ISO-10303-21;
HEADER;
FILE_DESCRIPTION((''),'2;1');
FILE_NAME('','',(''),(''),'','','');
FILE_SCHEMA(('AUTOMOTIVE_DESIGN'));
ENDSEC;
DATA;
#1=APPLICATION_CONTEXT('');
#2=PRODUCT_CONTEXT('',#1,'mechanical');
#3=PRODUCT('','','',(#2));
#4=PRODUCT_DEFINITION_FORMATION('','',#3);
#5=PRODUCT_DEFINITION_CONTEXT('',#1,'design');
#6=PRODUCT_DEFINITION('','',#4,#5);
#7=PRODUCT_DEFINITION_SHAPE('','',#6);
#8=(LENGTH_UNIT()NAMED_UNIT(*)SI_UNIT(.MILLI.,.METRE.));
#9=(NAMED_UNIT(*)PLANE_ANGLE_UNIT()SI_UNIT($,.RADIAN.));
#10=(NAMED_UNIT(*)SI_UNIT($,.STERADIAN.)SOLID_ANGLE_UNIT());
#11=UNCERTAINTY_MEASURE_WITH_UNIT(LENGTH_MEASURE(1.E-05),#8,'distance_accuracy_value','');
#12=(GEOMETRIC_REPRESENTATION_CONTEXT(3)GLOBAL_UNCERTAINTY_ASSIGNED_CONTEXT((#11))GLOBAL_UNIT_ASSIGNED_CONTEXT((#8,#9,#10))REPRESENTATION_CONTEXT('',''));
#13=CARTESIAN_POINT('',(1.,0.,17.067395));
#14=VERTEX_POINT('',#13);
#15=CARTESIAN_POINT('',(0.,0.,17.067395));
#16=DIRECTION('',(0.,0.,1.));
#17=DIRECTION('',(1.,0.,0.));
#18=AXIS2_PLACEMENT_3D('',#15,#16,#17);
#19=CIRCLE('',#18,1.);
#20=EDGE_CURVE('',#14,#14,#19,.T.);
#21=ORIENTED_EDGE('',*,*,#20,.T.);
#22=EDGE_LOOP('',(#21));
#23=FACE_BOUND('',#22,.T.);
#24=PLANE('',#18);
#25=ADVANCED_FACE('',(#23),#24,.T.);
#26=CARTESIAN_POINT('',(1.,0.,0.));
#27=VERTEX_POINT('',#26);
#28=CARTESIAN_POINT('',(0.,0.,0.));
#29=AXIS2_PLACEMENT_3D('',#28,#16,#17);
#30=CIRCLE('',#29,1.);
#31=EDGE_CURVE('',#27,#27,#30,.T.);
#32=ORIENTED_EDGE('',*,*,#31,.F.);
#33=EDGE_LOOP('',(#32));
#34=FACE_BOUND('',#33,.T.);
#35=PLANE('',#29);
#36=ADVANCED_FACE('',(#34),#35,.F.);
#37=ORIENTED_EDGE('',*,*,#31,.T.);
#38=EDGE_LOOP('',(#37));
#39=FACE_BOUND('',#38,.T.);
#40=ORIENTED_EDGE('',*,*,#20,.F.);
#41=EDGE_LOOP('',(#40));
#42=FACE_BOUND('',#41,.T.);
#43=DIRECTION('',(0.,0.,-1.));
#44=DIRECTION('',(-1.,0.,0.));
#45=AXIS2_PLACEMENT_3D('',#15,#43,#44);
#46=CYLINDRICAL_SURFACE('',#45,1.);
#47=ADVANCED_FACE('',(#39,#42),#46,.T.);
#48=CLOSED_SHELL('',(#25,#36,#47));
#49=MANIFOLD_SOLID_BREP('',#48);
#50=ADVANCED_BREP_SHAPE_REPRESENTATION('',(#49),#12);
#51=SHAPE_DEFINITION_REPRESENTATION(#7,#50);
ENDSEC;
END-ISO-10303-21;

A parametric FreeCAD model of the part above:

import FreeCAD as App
import Part
import Sketcher

doc = App.newDocument("Part")
params = doc.addObject("Spreadsheet::Sheet", "Params")
for row, (alias, value) in enumerate([
    ("sketch1_diameter", "2 mm"),
    ("pad1_length", "17.067395 mm"),
], start=1):
    params.set(f"A{row}", alias)
    params.set(f"B{row}", "=" + value)
    params.setAlias(f"B{row}", alias)

body = doc.addObject("PartDesign::Body", "Body")

# Sketch on XY plane
sketch1 = doc.addObject("Sketcher::SketchObject", "Sketch")
body.addObject(sketch1)
sketch1.AttachmentSupport = (doc.XY_Plane, [""])
sketch1.MapMode = "FlatFace"
sketch1.addGeometry(Part.Circle(App.Vector(0, 0, 0), App.Vector(0, 0, 1), 1), False)
sketch1.addConstraint([
    Sketcher.Constraint("Coincident", 0, 3, -1, 1),
    Sketcher.Constraint("Diameter", 0, 2.0),
])
sketch1.setExpression("Constraints[1]", "Params.sketch1_diameter")
pad1 = doc.addObject("PartDesign::Pad", "Pad")
body.addObject(pad1)
pad1.Profile = sketch1
pad1.setExpression("Length", "Params.pad1_length")

doc.recompute()
